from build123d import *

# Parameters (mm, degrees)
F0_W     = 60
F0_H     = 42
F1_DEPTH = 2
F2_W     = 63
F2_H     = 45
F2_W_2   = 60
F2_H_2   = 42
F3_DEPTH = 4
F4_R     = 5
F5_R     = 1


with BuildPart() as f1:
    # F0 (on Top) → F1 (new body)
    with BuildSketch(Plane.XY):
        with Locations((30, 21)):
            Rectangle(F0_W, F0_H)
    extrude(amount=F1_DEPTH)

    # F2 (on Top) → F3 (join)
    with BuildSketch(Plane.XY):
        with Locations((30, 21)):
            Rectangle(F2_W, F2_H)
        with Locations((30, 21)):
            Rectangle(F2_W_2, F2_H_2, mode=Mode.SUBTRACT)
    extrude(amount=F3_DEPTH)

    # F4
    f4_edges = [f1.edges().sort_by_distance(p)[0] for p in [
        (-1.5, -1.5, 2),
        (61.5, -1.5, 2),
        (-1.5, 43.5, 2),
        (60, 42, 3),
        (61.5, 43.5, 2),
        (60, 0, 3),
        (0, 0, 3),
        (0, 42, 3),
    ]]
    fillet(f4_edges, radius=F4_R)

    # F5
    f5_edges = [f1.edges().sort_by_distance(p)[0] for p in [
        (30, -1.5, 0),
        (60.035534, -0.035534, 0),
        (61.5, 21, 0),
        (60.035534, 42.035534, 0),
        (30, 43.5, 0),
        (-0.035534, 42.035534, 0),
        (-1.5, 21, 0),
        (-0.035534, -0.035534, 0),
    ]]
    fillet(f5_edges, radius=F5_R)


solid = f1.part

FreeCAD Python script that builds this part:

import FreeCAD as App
import Part
import Sketcher

V = App.Vector
Q = App.Units.Quantity


def edges_at(feature, points):
    """Names of the edges that pass closest to the given points."""
    edges = feature.Shape.Edges
    near = lambda p: min(range(len(edges)), key=lambda i: edges[i].distToShape(Part.Vertex(*p))[0])
    return sorted({f"Edge{near(p) + 1}" for p in points})

doc = App.newDocument("Part")
body = doc.addObject("PartDesign::Body", "Body")

sketch1 = body.newObject("Sketcher::SketchObject", "Sketch")
sketch1.AttachmentSupport = (doc.getObject("XY_Plane"), [""])
sketch1.MapMode = "FlatFace"
sketch1.addGeometry(Part.LineSegment(V(0, 42, 0), V(0, 0, 0)), False)
sketch1.addGeometry(Part.LineSegment(V(0, 0, 0), V(60, 0, 0)), False)
sketch1.addGeometry(Part.LineSegment(V(60, 0, 0), V(60, 42, 0)), False)
sketch1.addGeometry(Part.LineSegment(V(60, 42, 0), V(0, 42, 0)), False)
sketch1.addConstraint(Sketcher.Constraint("Coincident", 0, 2, 1, 1))
sketch1.addConstraint(Sketcher.Constraint("Coincident", 1, 2, 2, 1))
sketch1.addConstraint(Sketcher.Constraint("Coincident", 2, 2, 3, 1))
sketch1.addConstraint(Sketcher.Constraint("Coincident", 3, 2, 0, 1))
sketch1.addConstraint(Sketcher.Constraint("Vertical", 0))
sketch1.addConstraint(Sketcher.Constraint("Horizontal", 1))
sketch1.addConstraint(Sketcher.Constraint("Vertical", 2))
sketch1.addConstraint(Sketcher.Constraint("Horizontal", 3))
sketch1.addConstraint(Sketcher.Constraint("Coincident", 0, 2, -1, 1))
sketch1.addConstraint(Sketcher.Constraint("DistanceX", 1, 1, 1, 2, Q("60 mm")))
sketch1.addConstraint(Sketcher.Constraint("DistanceY", 0, 2, 0, 1, Q("42 mm")))
pad1 = body.newObject("PartDesign::Pad", "Pad")
pad1.Profile = sketch1
pad1.Length = 2

sketch2 = body.newObject("Sketcher::SketchObject", "Sketch001")
sketch2.AttachmentSupport = (doc.getObject("XY_Plane"), [""])
sketch2.MapMode = "FlatFace"
sketch2.addGeometry(Part.LineSegment(V(-2, 44, 0), V(-2, -2, 0)), False)
sketch2.addGeometry(Part.LineSegment(V(-2, -2, 0), V(62, -2, 0)), False)
sketch2.addGeometry(Part.LineSegment(V(62, -2, 0), V(62, 44, 0)), False)
sketch2.addGeometry(Part.LineSegment(V(62, 44, 0), V(-2, 44, 0)), False)
sketch2.addGeometry(Part.LineSegment(V(60, 0, 0), V(0, 0, 0)), False)
sketch2.addGeometry(Part.LineSegment(V(0, 0, 0), V(0, 42, 0)), False)
sketch2.addGeometry(Part.LineSegment(V(0, 42, 0), V(60, 42, 0)), False)
sketch2.addGeometry(Part.LineSegment(V(60, 42, 0), V(60, 0, 0)), False)
sketch2.addConstraint(Sketcher.Constraint("Coincident", 0, 2, 1, 1))
sketch2.addConstraint(Sketcher.Constraint("Coincident", 1, 2, 2, 1))
sketch2.addConstraint(Sketcher.Constraint("Coincident", 2, 2, 3, 1))
sketch2.addConstraint(Sketcher.Constraint("Coincident", 3, 2, 0, 1))
sketch2.addConstraint(Sketcher.Constraint("Coincident", 4, 2, 5, 1))
sketch2.addConstraint(Sketcher.Constraint("Coincident", 5, 2, 6, 1))
sketch2.addConstraint(Sketcher.Constraint("Coincident", 6, 2, 7, 1))
sketch2.addConstraint(Sketcher.Constraint("Coincident", 7, 2, 4, 1))
sketch2.addConstraint(Sketcher.Constraint("Vertical", 0))
sketch2.addConstraint(Sketcher.Constraint("Horizontal", 1))
sketch2.addConstraint(Sketcher.Constraint("Vertical", 2))
sketch2.addConstraint(Sketcher.Constraint("Horizontal", 3))
sketch2.addConstraint(Sketcher.Constraint("Horizontal", 4))
sketch2.addConstraint(Sketcher.Constraint("Vertical", 5))
sketch2.addConstraint(Sketcher.Constraint("Horizontal", 6))
sketch2.addConstraint(Sketcher.Constraint("Vertical", 7))
sketch2.addConstraint(Sketcher.Constraint("Coincident", 4, 2, -1, 1))
sketch2.addConstraint(Sketcher.Constraint("DistanceX", 1, 1, 1, 2, Q("63 mm")))
sketch2.addConstraint(Sketcher.Constraint("DistanceX", 4, 2, 4, 1, Q("60 mm")))
sketch2.addConstraint(Sketcher.Constraint("DistanceY", 0, 2, 0, 1, Q("45 mm")))
sketch2.addConstraint(Sketcher.Constraint("DistanceY", 5, 1, 5, 2, Q("42 mm")))
sketch2.addConstraint(Sketcher.Constraint("DistanceX", 0, 2, -1, 1, Q("1.5 mm")))
sketch2.addConstraint(Sketcher.Constraint("DistanceY", 0, 2, -1, 1, Q("1.5 mm")))
pad2 = body.newObject("PartDesign::Pad", "Pad001")
pad2.Profile = sketch2
pad2.Length = 4
doc.recompute()

fillet = body.newObject("PartDesign::Fillet", "Fillet")
fillet.Base = (pad2, edges_at(pad2, [
    (-1.5, -1.5, 2),
    (61.5, -1.5, 2),
    (-1.5, 43.5, 2),
    (60, 42, 3),
    (61.5, 43.5, 2),
    (60, 0, 3),
    (0, 0, 3),
    (0, 42, 3),
]))
fillet.Radius = 5
doc.recompute()

fillet2 = body.newObject("PartDesign::Fillet", "Fillet001")
fillet2.Base = (fillet, edges_at(fillet, [
    (30, -1.5, 0),
    (60.036, -0.036, 0),
    (61.5, 21, 0),
    (60.036, 42.036, 0),
    (30, 43.5, 0),
    (-0.036, 42.036, 0),
    (-1.5, 21, 0),
    (-0.036, -0.036, 0),
]))
fillet2.Radius = 1

doc.recompute()
